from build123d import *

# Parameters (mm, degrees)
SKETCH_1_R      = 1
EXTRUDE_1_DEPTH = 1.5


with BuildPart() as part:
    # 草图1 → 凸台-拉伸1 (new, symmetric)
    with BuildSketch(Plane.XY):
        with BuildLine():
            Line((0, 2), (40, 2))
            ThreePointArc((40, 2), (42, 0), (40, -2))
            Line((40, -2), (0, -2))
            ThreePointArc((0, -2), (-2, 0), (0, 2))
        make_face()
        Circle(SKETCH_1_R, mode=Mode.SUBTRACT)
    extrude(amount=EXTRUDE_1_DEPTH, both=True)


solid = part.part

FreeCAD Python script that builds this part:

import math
import FreeCAD as App
import Part
import Sketcher

doc = App.newDocument("Part")
body = doc.addObject("PartDesign::Body", "Body")

# Sketch on XY plane
sketch1 = body.newObject("Sketcher::SketchObject", "Sketch")
sketch1.AttachmentSupport = (doc.getObject("XY_Plane"), [""])
sketch1.MapMode = "FlatFace"
sketch1.addGeometry([
    Part.LineSegment(App.Vector(40, 2, 0), App.Vector(0, 2, 0)),  # 0
    Part.ArcOfCircle(Part.Circle(App.Vector(0, 0, 0), App.Vector(0, 0, 1), 2), math.radians(90), math.radians(270)),  # 1
    Part.LineSegment(App.Vector(0, -2, 0), App.Vector(40, -2, 0)),  # 2
    Part.ArcOfCircle(Part.Circle(App.Vector(40, 0, 0), App.Vector(0, 0, 1), 2), math.radians(-90), math.radians(90)),  # 3
    Part.Circle(App.Vector(0, 0, 0), App.Vector(0, 0, 1), 1),  # 4
], False)
sketch1.addConstraint([
    Sketcher.Constraint("Tangent", 0, 2, 1, 1),
    Sketcher.Constraint("Tangent", 1, 2, 2, 1),
    Sketcher.Constraint("Tangent", 2, 2, 3, 1),
    Sketcher.Constraint("Tangent", 3, 2, 0, 1),
    Sketcher.Constraint("Horizontal", 0),
    Sketcher.Constraint("Horizontal", 2),
    Sketcher.Constraint("Coincident", 1, 3, -1, 1),
    Sketcher.Constraint("Coincident", 4, 3, -1, 1),
    Sketcher.Constraint("Diameter", 4, 2.0),
    Sketcher.Constraint("Radius", 1, 2.0),
    Sketcher.Constraint("DistanceX", 0, 2, 0, 1, 40.0),
])
pad1 = body.newObject("PartDesign::Pad", "Pad")
pad1.Profile = sketch1
pad1.Length = 3
pad1.Midplane = True

doc.recompute()
